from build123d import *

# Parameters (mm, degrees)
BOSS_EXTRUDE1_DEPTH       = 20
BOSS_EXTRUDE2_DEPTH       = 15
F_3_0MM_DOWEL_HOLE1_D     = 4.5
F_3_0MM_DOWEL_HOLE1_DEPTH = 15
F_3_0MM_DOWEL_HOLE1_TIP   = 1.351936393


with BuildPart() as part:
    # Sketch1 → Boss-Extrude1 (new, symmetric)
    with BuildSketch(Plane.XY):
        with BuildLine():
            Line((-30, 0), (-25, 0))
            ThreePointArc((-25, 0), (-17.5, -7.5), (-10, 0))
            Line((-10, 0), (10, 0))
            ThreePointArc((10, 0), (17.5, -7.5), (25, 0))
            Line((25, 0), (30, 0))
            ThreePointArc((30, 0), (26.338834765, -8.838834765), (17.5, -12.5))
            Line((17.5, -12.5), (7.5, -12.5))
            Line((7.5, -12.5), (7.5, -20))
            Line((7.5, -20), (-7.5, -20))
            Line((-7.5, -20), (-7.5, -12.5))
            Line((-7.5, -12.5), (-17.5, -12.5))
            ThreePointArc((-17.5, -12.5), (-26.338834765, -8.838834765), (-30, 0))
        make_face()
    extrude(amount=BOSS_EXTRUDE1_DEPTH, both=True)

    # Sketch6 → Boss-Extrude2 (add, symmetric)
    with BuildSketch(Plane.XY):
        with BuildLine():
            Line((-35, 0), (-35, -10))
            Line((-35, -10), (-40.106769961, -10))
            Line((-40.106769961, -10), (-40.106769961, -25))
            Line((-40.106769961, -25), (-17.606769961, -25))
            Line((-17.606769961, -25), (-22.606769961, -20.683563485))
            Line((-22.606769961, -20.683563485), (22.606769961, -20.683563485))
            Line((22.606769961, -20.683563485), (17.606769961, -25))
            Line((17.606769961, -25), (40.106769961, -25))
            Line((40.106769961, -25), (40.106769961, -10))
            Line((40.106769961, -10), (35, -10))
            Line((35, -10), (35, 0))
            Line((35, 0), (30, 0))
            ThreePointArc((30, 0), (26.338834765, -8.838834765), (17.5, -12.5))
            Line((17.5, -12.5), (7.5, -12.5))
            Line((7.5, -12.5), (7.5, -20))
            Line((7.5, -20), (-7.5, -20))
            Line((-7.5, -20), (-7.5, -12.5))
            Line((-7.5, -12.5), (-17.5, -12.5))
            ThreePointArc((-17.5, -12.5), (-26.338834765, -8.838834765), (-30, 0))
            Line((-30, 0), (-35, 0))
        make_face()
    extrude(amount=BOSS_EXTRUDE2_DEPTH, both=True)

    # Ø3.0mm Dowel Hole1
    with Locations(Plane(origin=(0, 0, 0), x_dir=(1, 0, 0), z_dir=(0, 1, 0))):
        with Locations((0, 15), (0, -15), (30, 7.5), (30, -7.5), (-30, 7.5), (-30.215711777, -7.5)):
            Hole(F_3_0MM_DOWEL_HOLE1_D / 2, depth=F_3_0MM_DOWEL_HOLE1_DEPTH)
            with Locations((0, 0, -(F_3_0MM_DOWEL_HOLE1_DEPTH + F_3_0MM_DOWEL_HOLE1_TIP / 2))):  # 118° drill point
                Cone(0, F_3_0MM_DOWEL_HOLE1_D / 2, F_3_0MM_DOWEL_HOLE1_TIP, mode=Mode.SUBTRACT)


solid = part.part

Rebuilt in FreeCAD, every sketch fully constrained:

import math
import FreeCAD as App
import Part
import Sketcher
from FreeCAD import Vector
Q = App.Units.Quantity

doc = App.newDocument("Part")
body = doc.addObject("PartDesign::Body", "Body")

sketch1 = body.newObject("Sketcher::SketchObject", "Sketch")
sketch1.AttachmentSupport = (doc.getObject("XY_Plane"), [""])
sketch1.MapMode = "FlatFace"
sketch1.addGeometry([
    Part.LineSegment(Vector(-25, 0, 0), Vector(-30, 0, 0)),
    Part.ArcOfCircle(Part.Circle(Vector(-17.5, 0, 0), Vector(0, 0, 1), 12.5), math.radians(180), math.radians(270)),
    Part.LineSegment(Vector(-17.5, -12.5, 0), Vector(-7.5, -12.5, 0)),
    Part.LineSegment(Vector(-7.5, -12.5, 0), Vector(-7.5, -20, 0)),
    Part.LineSegment(Vector(-7.5, -20, 0), Vector(7.5, -20, 0)),
    Part.LineSegment(Vector(7.5, -20, 0), Vector(7.5, -12.5, 0)),
    Part.LineSegment(Vector(7.5, -12.5, 0), Vector(17.5, -12.5, 0)),
    Part.ArcOfCircle(Part.Circle(Vector(17.5, 0, 0), Vector(0, 0, 1), 12.5), math.radians(-90), math.radians(0)),
    Part.LineSegment(Vector(30, 0, 0), Vector(25, 0, 0)),
    Part.ArcOfCircle(Part.Circle(Vector(17.5, 0, 0), Vector(0, 0, 1), 7.5), math.radians(180), math.radians(360)),
    Part.LineSegment(Vector(10, 0, 0), Vector(-10, 0, 0)),
    Part.ArcOfCircle(Part.Circle(Vector(-17.5, 0, 0), Vector(0, 0, 1), 7.5), math.radians(180), math.radians(360)),
], False)
sketch1.addConstraint([
    Sketcher.Constraint("Coincident", 0, 2, 1, 1),
    Sketcher.Constraint("Tangent", 1, 2, 2, 1),
    Sketcher.Constraint("Coincident", 2, 2, 3, 1),
    Sketcher.Constraint("Coincident", 3, 2, 4, 1),
    Sketcher.Constraint("Coincident", 4, 2, 5, 1),
    Sketcher.Constraint("Coincident", 5, 2, 6, 1),
    Sketcher.Constraint("Tangent", 6, 2, 7, 1),
    Sketcher.Constraint("Coincident", 7, 2, 8, 1),
    Sketcher.Constraint("Coincident", 8, 2, 9, 2),
    Sketcher.Constraint("Coincident", 9, 1, 10, 1),
    Sketcher.Constraint("Coincident", 10, 2, 11, 2),
    Sketcher.Constraint("Coincident", 11, 1, 0, 1),
    Sketcher.Constraint("Horizontal", 0),
    Sketcher.Constraint("Horizontal", 2),
    Sketcher.Constraint("Vertical", 3),
    Sketcher.Constraint("Horizontal", 4),
    Sketcher.Constraint("Vertical", 5),
    Sketcher.Constraint("Horizontal", 6),
    Sketcher.Constraint("Horizontal", 8),
    Sketcher.Constraint("Horizontal", 10),
    Sketcher.Constraint("Coincident", 9, 3, 7, 3),
    Sketcher.Constraint("Coincident", 11, 3, 1, 3),
    Sketcher.Constraint("Equal", 1, 7),
    Sketcher.Constraint("Equal", 9, 11),
    Sketcher.Constraint("Symmetric", 1, 3, 7, 3, -1, 1),
    Sketcher.Constraint("Symmetric", 2, 2, 5, 2, -2),
    Sketcher.Constraint("PointOnObject", 0, 2, -1),
    Sketcher.Constraint("PointOnObject", 7, 2, -1),
    Sketcher.Constraint("PointOnObject", 9, 1, -1),
    Sketcher.Constraint("Radius", 1, Q("12.5 mm")),
    Sketcher.Constraint("Radius", 9, Q("7.5 mm")),
    Sketcher.Constraint("DistanceX", 2, 1, 2, 2, Q("10 mm")),
    Sketcher.Constraint("DistanceX", 4, 1, 4, 2, Q("15 mm")),
    Sketcher.Constraint("DistanceY", 3, 2, 3, 1, Q("7.5 mm")),
])
pad1 = body.newObject("PartDesign::Pad", "Pad")
pad1.Profile = sketch1
pad1.Length = 40
pad1.Midplane = True

sketch2 = body.newObject("Sketcher::SketchObject", "Sketch001")
sketch2.AttachmentSupport = (doc.getObject("XY_Plane"), [""])
sketch2.MapMode = "FlatFace"
sketch2.addGeometry([
    Part.LineSegment(Vector(-35, 0, 0), Vector(-35, -10, 0)),
    Part.LineSegment(Vector(-35, -10, 0), Vector(-40.10677, -10, 0)),
    Part.LineSegment(Vector(-40.10677, -10, 0), Vector(-40.10677, -25, 0)),
    Part.LineSegment(Vector(-40.10677, -25, 0), Vector(-17.60677, -25, 0)),
    Part.LineSegment(Vector(-17.60677, -25, 0), Vector(-22.60677, -20.683563, 0)),
    Part.LineSegment(Vector(-22.60677, -20.683563, 0), Vector(22.60677, -20.683563, 0)),
    Part.LineSegment(Vector(22.60677, -20.683563, 0), Vector(17.60677, -25, 0)),
    Part.LineSegment(Vector(17.60677, -25, 0), Vector(40.10677, -25, 0)),
    Part.LineSegment(Vector(40.10677, -25, 0), Vector(40.10677, -10, 0)),
    Part.LineSegment(Vector(40.10677, -10, 0), Vector(35, -10, 0)),
    Part.LineSegment(Vector(35, -10, 0), Vector(35, 0, 0)),
    Part.LineSegment(Vector(35, 0, 0), Vector(30, 0, 0)),
    Part.ArcOfCircle(Part.Circle(Vector(17.5, 0, 0), Vector(0, 0, 1), 12.5), math.radians(-90), math.radians(0)),
    Part.LineSegment(Vector(17.5, -12.5, 0), Vector(7.5, -12.5, 0)),
    Part.LineSegment(Vector(7.5, -12.5, 0), Vector(7.5, -20, 0)),
    Part.LineSegment(Vector(7.5, -20, 0), Vector(-7.5, -20, 0)),
    Part.LineSegment(Vector(-7.5, -20, 0), Vector(-7.5, -12.5, 0)),
    Part.LineSegment(Vector(-7.5, -12.5, 0), Vector(-17.5, -12.5, 0)),
    Part.ArcOfCircle(Part.Circle(Vector(-17.5, 0, 0), Vector(0, 0, 1), 12.5), math.radians(180), math.radians(270)),
    Part.LineSegment(Vector(-30, 0, 0), Vector(-35, 0, 0)),
], False)
sketch2.addConstraint([
    Sketcher.Constraint("Coincident", 0, 2, 1, 1),
    Sketcher.Constraint("Coincident", 1, 2, 2, 1),
    Sketcher.Constraint("Coincident", 2, 2, 3, 1),
    Sketcher.Constraint("Coincident", 3, 2, 4, 1),
    Sketcher.Constraint("Coincident", 4, 2, 5, 1),
    Sketcher.Constraint("Coincident", 5, 2, 6, 1),
    Sketcher.Constraint("Coincident", 6, 2, 7, 1),
    Sketcher.Constraint("Coincident", 7, 2, 8, 1),
    Sketcher.Constraint("Coincident", 8, 2, 9, 1),
    Sketcher.Constraint("Coincident", 9, 2, 10, 1),
    Sketcher.Constraint("Coincident", 10, 2, 11, 1),
    Sketcher.Constraint("Coincident", 11, 2, 12, 2),
    Sketcher.Constraint("Tangent", 12, 1, 13, 1),
    Sketcher.Constraint("Coincident", 13, 2, 14, 1),
    Sketcher.Constraint("Coincident", 14, 2, 15, 1),
    Sketcher.Constraint("Coincident", 15, 2, 16, 1),
    Sketcher.Constraint("Coincident", 16, 2, 17, 1),
    Sketcher.Constraint("Tangent", 17, 2, 18, 2),
    Sketcher.Constraint("Coincident", 18, 1, 19, 1),
    Sketcher.Constraint("Coincident", 19, 2, 0, 1),
    Sketcher.Constraint("Vertical", 0),
    Sketcher.Constraint("Horizontal", 1),
    Sketcher.Constraint("Vertical", 2),
    Sketcher.Constraint("Horizontal", 3),
    Sketcher.Constraint("Horizontal", 5),
    Sketcher.Constraint("Horizontal", 7),
    Sketcher.Constraint("Vertical", 8),
    Sketcher.Constraint("Horizontal", 9),
    Sketcher.Constraint("Vertical", 10),
    Sketcher.Constraint("Horizontal", 11),
    Sketcher.Constraint("Horizontal", 13),
    Sketcher.Constraint("Vertical", 14),
    Sketcher.Constraint("Horizontal", 15),
    Sketcher.Constraint("Vertical", 16),
    Sketcher.Constraint("Horizontal", 17),
    Sketcher.Constraint("Horizontal", 19),
    Sketcher.Constraint("Equal", 12, 18),
    Sketcher.Constraint("Symmetric", 12, 3, 18, 3, -1, 1),
    Sketcher.Constraint("Symmetric", 10, 2, 19, 2, -1, 1),
    Sketcher.Constraint("Symmetric", 3, 2, 6, 2, -2),
    Sketcher.Constraint("Symmetric", 1, 2, 8, 2, -2),
    Sketcher.Constraint("Symmetric", 13, 2, 16, 2, -2),
    Sketcher.Constraint("PointOnObject", 10, 2, -1),
    Sketcher.Constraint("Equal", 17, 0),
    Sketcher.Constraint("Equal", 15, 2),
    Sketcher.Constraint("Equal", 4, 6),
    Sketcher.Constraint("Radius", 12, Q("12.5 mm")),
    Sketcher.Constraint("DistanceX", 11, 2, 11, 1, Q("5 mm")),
    Sketcher.Constraint("DistanceX", 13, 2, 13, 1, Q("10 mm")),
    Sketcher.Constraint("DistanceX", 15, 2, 15, 1, Q("15 mm")),
    Sketcher.Constraint("DistanceX", 3, 1, 3, 2, Q("22.5 mm")),
    Sketcher.Constraint("DistanceY", 14, 2, 14, 1, Q("7.5 mm")),
    Sketcher.Constraint("DistanceX", 4, 2, 3, 2, Q("5 mm")),
    Sketcher.Constraint("DistanceX", 1, 2, 1, 1, Q("5.10677 mm")),
    Sketcher.Constraint("Distance", 4, Q("6.605424 mm")),
])
pad2 = body.newObject("PartDesign::Pad", "Pad001")
pad2.Profile = sketch2
pad2.Length = 30
pad2.Midplane = True

sketch3 = body.newObject("Sketcher::SketchObject", "Sketch002")
sketch3.AttachmentSupport = (doc.getObject("XZ_Plane"), [""])
sketch3.MapMode = "FlatFace"
sketch3.addGeometry([
    Part.Circle(Vector(0, -15, 0), Vector(0, 0, 1), 2.25),
    Part.Circle(Vector(0, 15, 0), Vector(0, 0, 1), 2.25),
    Part.Circle(Vector(30, -7.5, 0), Vector(0, 0, 1), 2.25),
    Part.Circle(Vector(30, 7.5, 0), Vector(0, 0, 1), 2.25),
    Part.Circle(Vector(-30, -7.5, 0), Vector(0, 0, 1), 2.25),
    Part.Circle(Vector(-30.215712, 7.5, 0), Vector(0, 0, 1), 2.25),
], False)
sketch3.addConstraint([
    Sketcher.Constraint("Equal", 0, 1),
    Sketcher.Constraint("Equal", 1, 2),
    Sketcher.Constraint("Equal", 2, 3),
    Sketcher.Constraint("Equal", 3, 4),
    Sketcher.Constraint("Equal", 4, 5),
    Sketcher.Constraint("Symmetric", 0, 3, 1, 3, -1, 1),
    Sketcher.Constraint("Symmetric", 3, 3, 4, 3, -1, 1),
    Sketcher.Constraint("Symmetric", 2, 3, 4, 3, -2),
    Sketcher.Constraint("PointOnObject", 0, 3, -2),
    Sketcher.Constraint("Horizontal", 3, 3, 5, 3),
    Sketcher.Constraint("Diameter", 0, Q("4.5 mm")),
    Sketcher.Constraint("DistanceY", 0, 3, -1, 1, Q("15 mm")),
    Sketcher.Constraint("DistanceX", -1, 1, 2, 3, Q("30 mm")),
    Sketcher.Constraint("DistanceY", 2, 3, 3, 3, Q("15 mm")),
    Sketcher.Constraint("DistanceX", 5, 3, -1, 1, Q("30.215712 mm")),
])
doc.recompute()
hole = body.newObject("PartDesign::Hole", "Hole")
hole.Profile = sketch3
hole.ThreadType = "None"
hole.Diameter = 4.5
hole.DepthType = "Dimension"
hole.Depth = 15
hole.DrillPoint = "Angled"
hole.DrillPointAngle = 118
hole.Reversed = True

doc.recompute()
